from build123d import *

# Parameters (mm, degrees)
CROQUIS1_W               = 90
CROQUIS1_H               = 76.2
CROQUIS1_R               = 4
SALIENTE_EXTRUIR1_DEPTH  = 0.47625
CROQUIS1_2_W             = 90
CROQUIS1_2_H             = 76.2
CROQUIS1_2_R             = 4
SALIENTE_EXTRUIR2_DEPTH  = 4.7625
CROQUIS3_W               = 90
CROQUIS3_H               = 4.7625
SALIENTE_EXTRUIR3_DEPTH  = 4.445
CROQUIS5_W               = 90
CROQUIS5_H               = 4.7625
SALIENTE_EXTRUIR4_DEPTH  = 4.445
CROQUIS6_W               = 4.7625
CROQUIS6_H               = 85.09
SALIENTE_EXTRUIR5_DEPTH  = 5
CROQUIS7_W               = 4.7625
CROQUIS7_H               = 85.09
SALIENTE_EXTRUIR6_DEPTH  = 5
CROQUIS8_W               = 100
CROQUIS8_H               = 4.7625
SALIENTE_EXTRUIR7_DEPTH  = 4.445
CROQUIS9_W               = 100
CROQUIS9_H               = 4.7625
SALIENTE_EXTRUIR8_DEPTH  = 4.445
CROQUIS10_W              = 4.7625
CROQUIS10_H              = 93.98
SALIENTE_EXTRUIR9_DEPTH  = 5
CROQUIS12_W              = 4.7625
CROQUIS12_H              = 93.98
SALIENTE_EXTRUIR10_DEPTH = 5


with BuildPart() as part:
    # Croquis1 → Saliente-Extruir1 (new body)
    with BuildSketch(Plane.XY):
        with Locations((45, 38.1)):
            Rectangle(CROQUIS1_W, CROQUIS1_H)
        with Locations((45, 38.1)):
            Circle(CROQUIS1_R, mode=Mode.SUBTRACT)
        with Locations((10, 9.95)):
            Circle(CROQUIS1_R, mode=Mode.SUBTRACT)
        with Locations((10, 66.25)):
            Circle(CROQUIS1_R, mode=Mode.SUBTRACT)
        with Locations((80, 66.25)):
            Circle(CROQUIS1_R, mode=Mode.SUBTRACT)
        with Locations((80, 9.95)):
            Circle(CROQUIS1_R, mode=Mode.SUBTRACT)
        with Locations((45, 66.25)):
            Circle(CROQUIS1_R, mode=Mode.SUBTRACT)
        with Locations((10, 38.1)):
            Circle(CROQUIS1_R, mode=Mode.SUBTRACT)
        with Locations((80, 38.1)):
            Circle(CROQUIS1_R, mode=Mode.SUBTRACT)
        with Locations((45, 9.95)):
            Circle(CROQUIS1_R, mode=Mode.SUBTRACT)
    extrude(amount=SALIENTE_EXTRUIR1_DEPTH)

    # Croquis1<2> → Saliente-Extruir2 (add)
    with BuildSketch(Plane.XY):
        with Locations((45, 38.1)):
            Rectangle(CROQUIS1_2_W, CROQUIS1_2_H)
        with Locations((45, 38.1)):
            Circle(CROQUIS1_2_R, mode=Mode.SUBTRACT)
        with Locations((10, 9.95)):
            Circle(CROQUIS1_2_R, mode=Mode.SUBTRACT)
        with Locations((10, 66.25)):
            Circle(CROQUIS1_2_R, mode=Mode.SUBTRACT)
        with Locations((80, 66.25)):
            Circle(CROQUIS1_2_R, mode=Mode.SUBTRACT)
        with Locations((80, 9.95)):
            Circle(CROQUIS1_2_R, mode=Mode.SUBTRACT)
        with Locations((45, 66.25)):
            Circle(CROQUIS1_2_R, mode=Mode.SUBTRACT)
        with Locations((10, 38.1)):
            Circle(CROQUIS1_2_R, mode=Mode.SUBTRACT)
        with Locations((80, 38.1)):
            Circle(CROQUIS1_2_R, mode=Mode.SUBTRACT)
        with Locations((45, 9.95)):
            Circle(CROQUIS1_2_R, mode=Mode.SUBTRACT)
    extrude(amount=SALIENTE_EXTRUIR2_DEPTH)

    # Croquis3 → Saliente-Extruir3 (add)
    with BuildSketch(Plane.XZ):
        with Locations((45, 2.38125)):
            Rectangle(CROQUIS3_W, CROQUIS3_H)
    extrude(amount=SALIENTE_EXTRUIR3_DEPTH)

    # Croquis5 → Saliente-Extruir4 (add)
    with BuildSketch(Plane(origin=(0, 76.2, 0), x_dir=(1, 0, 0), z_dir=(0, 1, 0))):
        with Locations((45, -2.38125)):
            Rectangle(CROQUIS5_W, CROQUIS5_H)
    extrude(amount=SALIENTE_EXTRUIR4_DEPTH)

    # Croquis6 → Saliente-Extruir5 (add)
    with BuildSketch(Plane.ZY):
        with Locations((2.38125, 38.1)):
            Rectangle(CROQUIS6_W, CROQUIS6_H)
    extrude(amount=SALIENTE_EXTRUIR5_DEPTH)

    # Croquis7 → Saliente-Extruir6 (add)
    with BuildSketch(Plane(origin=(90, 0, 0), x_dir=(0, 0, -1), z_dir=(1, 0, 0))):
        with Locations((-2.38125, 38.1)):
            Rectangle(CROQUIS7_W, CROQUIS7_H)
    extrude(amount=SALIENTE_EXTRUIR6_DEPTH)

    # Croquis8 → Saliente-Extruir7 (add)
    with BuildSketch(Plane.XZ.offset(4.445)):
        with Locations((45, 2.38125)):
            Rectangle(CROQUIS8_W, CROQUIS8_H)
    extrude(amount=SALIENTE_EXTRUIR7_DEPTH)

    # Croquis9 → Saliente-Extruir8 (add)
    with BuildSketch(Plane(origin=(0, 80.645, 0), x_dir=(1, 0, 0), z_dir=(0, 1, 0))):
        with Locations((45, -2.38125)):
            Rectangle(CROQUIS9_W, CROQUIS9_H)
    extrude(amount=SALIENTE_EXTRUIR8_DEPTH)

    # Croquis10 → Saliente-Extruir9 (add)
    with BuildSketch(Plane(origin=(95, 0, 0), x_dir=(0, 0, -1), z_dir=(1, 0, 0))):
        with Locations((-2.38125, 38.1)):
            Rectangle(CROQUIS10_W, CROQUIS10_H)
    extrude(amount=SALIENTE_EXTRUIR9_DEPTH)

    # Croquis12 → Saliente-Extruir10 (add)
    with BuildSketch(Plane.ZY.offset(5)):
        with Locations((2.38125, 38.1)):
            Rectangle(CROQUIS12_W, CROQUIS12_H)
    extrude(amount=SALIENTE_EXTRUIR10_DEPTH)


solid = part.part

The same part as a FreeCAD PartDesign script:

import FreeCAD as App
import Part
import Sketcher
Q = App.Units.Quantity

doc = App.newDocument("Part")
body = doc.addObject("PartDesign::Body", "Body")

# Sketch on XY plane
sketch1 = doc.addObject("Sketcher::SketchObject", "Sketch")
body.addObject(sketch1)
sketch1.AttachmentSupport = (doc.XY_Plane, [""])
sketch1.MapMode = "FlatFace"
sketch1.addGeometry([
    Part.LineSegment(App.Vector(0, 76.2, 0), App.Vector(0, 0, 0)),  # 0
    Part.LineSegment(App.Vector(0, 0, 0), App.Vector(90, 0, 0)),  # 1
    Part.LineSegment(App.Vector(90, 0, 0), App.Vector(90, 76.2, 0)),  # 2
    Part.LineSegment(App.Vector(90, 76.2, 0), App.Vector(0, 76.2, 0)),  # 3
    Part.Circle(App.Vector(10, 9.9, 0), App.Vector(0, 0, 1), 4),  # 4
    Part.Circle(App.Vector(45, 9.9, 0), App.Vector(0, 0, 1), 4),  # 5
    Part.Circle(App.Vector(80, 9.9, 0), App.Vector(0, 0, 1), 4),  # 6
    Part.Circle(App.Vector(10, 38.1, 0), App.Vector(0, 0, 1), 4),  # 7
    Part.Circle(App.Vector(10, 66.2, 0), App.Vector(0, 0, 1), 4),  # 8
    Part.Circle(App.Vector(45, 38.1, 0), App.Vector(0, 0, 1), 4),  # 9
    Part.Circle(App.Vector(80, 38.1, 0), App.Vector(0, 0, 1), 4),  # 10
    Part.Circle(App.Vector(45, 66.2, 0), App.Vector(0, 0, 1), 4),  # 11
    Part.Circle(App.Vector(80, 66.2, 0), App.Vector(0, 0, 1), 4),  # 12
], False)
sketch1.addConstraint([
    Sketcher.Constraint("Coincident", 0, 2, 1, 1),
    Sketcher.Constraint("Coincident", 1, 2, 2, 1),
    Sketcher.Constraint("Coincident", 2, 2, 3, 1),
    Sketcher.Constraint("Coincident", 3, 2, 0, 1),
    Sketcher.Constraint("Vertical", 0),
    Sketcher.Constraint("Horizontal", 1),
    Sketcher.Constraint("Vertical", 2),
    Sketcher.Constraint("Horizontal", 3),
    Sketcher.Constraint("Coincident", 0, 2, -1, 1),
    Sketcher.Constraint("Equal", 4, 5),
    Sketcher.Constraint("Equal", 5, 6),
    Sketcher.Constraint("Equal", 6, 7),
    Sketcher.Constraint("Equal", 7, 8),
    Sketcher.Constraint("Equal", 8, 9),
    Sketcher.Constraint("Equal", 9, 10),
    Sketcher.Constraint("Equal", 10, 11),
    Sketcher.Constraint("Equal", 11, 12),
    Sketcher.Constraint("Horizontal", 4, 3, 5, 3),
    Sketcher.Constraint("Horizontal", 5, 3, 6, 3),
    Sketcher.Constraint("Horizontal", 7, 3, 9, 3),
    Sketcher.Constraint("Horizontal", 9, 3, 10, 3),
    Sketcher.Constraint("Horizontal", 8, 3, 11, 3),
    Sketcher.Constraint("Horizontal", 11, 3, 12, 3),
    Sketcher.Constraint("Vertical", 4, 3, 7, 3),
    Sketcher.Constraint("Vertical", 7, 3, 8, 3),
    Sketcher.Constraint("Vertical", 5, 3, 9, 3),
    Sketcher.Constraint("Vertical", 6, 3, 10, 3),
    Sketcher.Constraint("Vertical", 9, 3, 11, 3),
    Sketcher.Constraint("Vertical", 10, 3, 12, 3),
    Sketcher.Constraint("DistanceY", 0, 2, 0, 1, Q("3 in")),
    Sketcher.Constraint("DistanceY", -1, 1, 7, 3, Q("1.5 in")),
    Sketcher.Constraint("Diameter", 4, Q("8 mm")),
    Sketcher.Constraint("DistanceX", 1, 1, 1, 2, Q("90 mm")),
    Sketcher.Constraint("DistanceX", -1, 1, 4, 3, Q("10 mm")),
    Sketcher.Constraint("DistanceY", -1, 1, 4, 3, Q("9.95 mm")),
    Sketcher.Constraint("DistanceX", -1, 1, 5, 3, Q("45 mm")),
    Sketcher.Constraint("DistanceX", -1, 1, 6, 3, Q("80 mm")),
    Sketcher.Constraint("DistanceY", -1, 1, 8, 3, Q("66.25 mm")),
])
pad1 = doc.addObject("PartDesign::Pad", "Pad")
body.addObject(pad1)
pad1.Profile = sketch1
pad1.Length = 0.47625

# Sketch on XY plane
sketch2 = doc.addObject("Sketcher::SketchObject", "Sketch001")
body.addObject(sketch2)
sketch2.AttachmentSupport = (doc.XY_Plane, [""])
sketch2.MapMode = "FlatFace"
sketch2.addGeometry([
    Part.LineSegment(App.Vector(0, 76.2, 0), App.Vector(0, 0, 0)),  # 0
    Part.LineSegment(App.Vector(0, 0, 0), App.Vector(90, 0, 0)),  # 1
    Part.LineSegment(App.Vector(90, 0, 0), App.Vector(90, 76.2, 0)),  # 2
    Part.LineSegment(App.Vector(90, 76.2, 0), App.Vector(0, 76.2, 0)),  # 3
    Part.Circle(App.Vector(10, 9.9, 0), App.Vector(0, 0, 1), 4),  # 4
    Part.Circle(App.Vector(45, 9.9, 0), App.Vector(0, 0, 1), 4),  # 5
    Part.Circle(App.Vector(80, 9.9, 0), App.Vector(0, 0, 1), 4),  # 6
    Part.Circle(App.Vector(10, 38.1, 0), App.Vector(0, 0, 1), 4),  # 7
    Part.Circle(App.Vector(10, 66.2, 0), App.Vector(0, 0, 1), 4),  # 8
    Part.Circle(App.Vector(45, 38.1, 0), App.Vector(0, 0, 1), 4),  # 9
    Part.Circle(App.Vector(80, 38.1, 0), App.Vector(0, 0, 1), 4),  # 10
    Part.Circle(App.Vector(45, 66.2, 0), App.Vector(0, 0, 1), 4),  # 11
    Part.Circle(App.Vector(80, 66.2, 0), App.Vector(0, 0, 1), 4),  # 12
], False)
sketch2.addConstraint([
    Sketcher.Constraint("Coincident", 0, 2, 1, 1),
    Sketcher.Constraint("Coincident", 1, 2, 2, 1),
    Sketcher.Constraint("Coincident", 2, 2, 3, 1),
    Sketcher.Constraint("Coincident", 3, 2, 0, 1),
    Sketcher.Constraint("Vertical", 0),
    Sketcher.Constraint("Horizontal", 1),
    Sketcher.Constraint("Vertical", 2),
    Sketcher.Constraint("Horizontal", 3),
    Sketcher.Constraint("Coincident", 0, 2, -1, 1),
    Sketcher.Constraint("Equal", 4, 5),
    Sketcher.Constraint("Equal", 5, 6),
    Sketcher.Constraint("Equal", 6, 7),
    Sketcher.Constraint("Equal", 7, 8),
    Sketcher.Constraint("Equal", 8, 9),
    Sketcher.Constraint("Equal", 9, 10),
    Sketcher.Constraint("Equal", 10, 11),
    Sketcher.Constraint("Equal", 11, 12),
    Sketcher.Constraint("Horizontal", 4, 3, 5, 3),
    Sketcher.Constraint("Horizontal", 5, 3, 6, 3),
    Sketcher.Constraint("Horizontal", 7, 3, 9, 3),
    Sketcher.Constraint("Horizontal", 9, 3, 10, 3),
    Sketcher.Constraint("Horizontal", 8, 3, 11, 3),
    Sketcher.Constraint("Horizontal", 11, 3, 12, 3),
    Sketcher.Constraint("Vertical", 4, 3, 7, 3),
    Sketcher.Constraint("Vertical", 7, 3, 8, 3),
    Sketcher.Constraint("Vertical", 5, 3, 9, 3),
    Sketcher.Constraint("Vertical", 6, 3, 10, 3),
    Sketcher.Constraint("Vertical", 9, 3, 11, 3),
    Sketcher.Constraint("Vertical", 10, 3, 12, 3),
    Sketcher.Constraint("DistanceY", 0, 2, 0, 1, Q("3 in")),
    Sketcher.Constraint("DistanceY", -1, 1, 7, 3, Q("1.5 in")),
    Sketcher.Constraint("Diameter", 4, Q("8 mm")),
    Sketcher.Constraint("DistanceX", 1, 1, 1, 2, Q("90 mm")),
    Sketcher.Constraint("DistanceX", -1, 1, 4, 3, Q("10 mm")),
    Sketcher.Constraint("DistanceY", -1, 1, 4, 3, Q("9.95 mm")),
    Sketcher.Constraint("DistanceX", -1, 1, 5, 3, Q("45 mm")),
    Sketcher.Constraint("DistanceX", -1, 1, 6, 3, Q("80 mm")),
    Sketcher.Constraint("DistanceY", -1, 1, 8, 3, Q("66.25 mm")),
])
pad2 = doc.addObject("PartDesign::Pad", "Pad001")
body.addObject(pad2)
pad2.Profile = sketch2
pad2.Length = Q("0.1875 in")

# Sketch on XZ plane
sketch3 = doc.addObject("Sketcher::SketchObject", "Sketch002")
body.addObject(sketch3)
sketch3.AttachmentSupport = (doc.XZ_Plane, [""])
sketch3.MapMode = "FlatFace"
sketch3.addGeometry([
    Part.LineSegment(App.Vector(0, 4.8, 0), App.Vector(0, 0, 0)),
    Part.LineSegment(App.Vector(0, 0, 0), App.Vector(90, 0, 0)),
    Part.LineSegment(App.Vector(90, 0, 0), App.Vector(90, 4.8, 0)),
    Part.LineSegment(App.Vector(90, 4.8, 0), App.Vector(0, 4.8, 0)),
], False)
sketch3.addConstraint([
    Sketcher.Constraint("Coincident", 0, 2, 1, 1),
    Sketcher.Constraint("Coincident", 1, 2, 2, 1),
    Sketcher.Constraint("Coincident", 2, 2, 3, 1),
    Sketcher.Constraint("Coincident", 3, 2, 0, 1),
    Sketcher.Constraint("Vertical", 0),
    Sketcher.Constraint("Horizontal", 1),
    Sketcher.Constraint("Vertical", 2),
    Sketcher.Constraint("Horizontal", 3),
    Sketcher.Constraint("Coincident", 0, 2, -1, 1),
    Sketcher.Constraint("DistanceY", 0, 2, 0, 1, Q("0.1875 in")),
    Sketcher.Constraint("DistanceX", 1, 1, 1, 2, Q("90 mm")),
])
pad3 = doc.addObject("PartDesign::Pad", "Pad002")
body.addObject(pad3)
pad3.Profile = sketch3
pad3.Length = Q("0.175 in")

# Sketch on XZ plane
sketch4 = doc.addObject("Sketcher::SketchObject", "Sketch003")
body.addObject(sketch4)
sketch4.AttachmentSupport = (doc.XZ_Plane, [""])
sketch4.MapMode = "FlatFace"
sketch4.AttachmentOffset = App.Placement(App.Vector(0, 0, -3 * 25.4), App.Rotation())
sketch4.addGeometry([
    Part.LineSegment(App.Vector(0, 0, 0), App.Vector(0, 4.8, 0)),
    Part.LineSegment(App.Vector(0, 4.8, 0), App.Vector(90, 4.8, 0)),
    Part.LineSegment(App.Vector(90, 4.8, 0), App.Vector(90, 0, 0)),
    Part.LineSegment(App.Vector(90, 0, 0), App.Vector(0, 0, 0)),
], False)
sketch4.addConstraint([
    Sketcher.Constraint("Coincident", 0, 2, 1, 1),
    Sketcher.Constraint("Coincident", 1, 2, 2, 1),
    Sketcher.Constraint("Coincident", 2, 2, 3, 1),
    Sketcher.Constraint("Coincident", 3, 2, 0, 1),
    Sketcher.Constraint("Vertical", 0),
    Sketcher.Constraint("Horizontal", 1),
    Sketcher.Constraint("Vertical", 2),
    Sketcher.Constraint("Horizontal", 3),
    Sketcher.Constraint("Coincident", 3, 2, -1, 1),
    Sketcher.Constraint("DistanceY", 0, 1, 0, 2, Q("0.1875 in")),
    Sketcher.Constraint("DistanceX", 1, 1, 1, 2, Q("90 mm")),
])
pad4 = doc.addObject("PartDesign::Pad", "Pad003")
body.addObject(pad4)
pad4.Profile = sketch4
pad4.Length = Q("0.175 in")
pad4.Reversed = True

# Sketch on YZ plane
sketch5 = doc.addObject("Sketcher::SketchObject", "Sketch004")
body.addObject(sketch5)
sketch5.AttachmentSupport = (doc.YZ_Plane, [""])
sketch5.MapMode = "FlatFace"
sketch5.addGeometry([
    Part.LineSegment(App.Vector(80.6, 0, 0), App.Vector(-4.4, 0, 0)),
    Part.LineSegment(App.Vector(-4.4, 0, 0), App.Vector(-4.4, 4.8, 0)),
    Part.LineSegment(App.Vector(-4.4, 4.8, 0), App.Vector(80.6, 4.8, 0)),
    Part.LineSegment(App.Vector(80.6, 4.8, 0), App.Vector(80.6, 0, 0)),
], False)
sketch5.addConstraint([
    Sketcher.Constraint("Coincident", 0, 2, 1, 1),
    Sketcher.Constraint("Coincident", 1, 2, 2, 1),
    Sketcher.Constraint("Coincident", 2, 2, 3, 1),
    Sketcher.Constraint("Coincident", 3, 2, 0, 1),
    Sketcher.Constraint("Horizontal", 0),
    Sketcher.Constraint("Vertical", 1),
    Sketcher.Constraint("Horizontal", 2),
    Sketcher.Constraint("Vertical", 3),
    Sketcher.Constraint("PointOnObject", 0, 2, -1),
    Sketcher.Constraint("DistanceX", 0, 2, 0, 1, Q("3.35 in")),
    Sketcher.Constraint("DistanceY", 1, 1, 1, 2, Q("0.1875 in")),
    Sketcher.Constraint("DistanceX", 0, 2, -1, 1, Q("0.175 in")),
])
pad5 = doc.addObject("PartDesign::Pad", "Pad004")
body.addObject(pad5)
pad5.Profile = sketch5
pad5.Length = 5
pad5.Reversed = True

# Sketch on YZ plane
sketch6 = doc.addObject("Sketcher::SketchObject", "Sketch005")
body.addObject(sketch6)
sketch6.AttachmentSupport = (doc.YZ_Plane, [""])
sketch6.MapMode = "FlatFace"
sketch6.AttachmentOffset = App.Placement(App.Vector(0, 0, 90), App.Rotation())
sketch6.addGeometry([
    Part.LineSegment(App.Vector(80.6, 4.8, 0), App.Vector(-4.4, 4.8, 0)),
    Part.LineSegment(App.Vector(-4.4, 4.8, 0), App.Vector(-4.4, 0, 0)),
    Part.LineSegment(App.Vector(-4.4, 0, 0), App.Vector(80.6, 0, 0)),
    Part.LineSegment(App.Vector(80.6, 0, 0), App.Vector(80.6, 4.8, 0)),
], False)
sketch6.addConstraint([
    Sketcher.Constraint("Coincident", 0, 2, 1, 1),
    Sketcher.Constraint("Coincident", 1, 2, 2, 1),
    Sketcher.Constraint("Coincident", 2, 2, 3, 1),
    Sketcher.Constraint("Coincident", 3, 2, 0, 1),
    Sketcher.Constraint("Horizontal", 0),
    Sketcher.Constraint("Vertical", 1),
    Sketcher.Constraint("Horizontal", 2),
    Sketcher.Constraint("Vertical", 3),
    Sketcher.Constraint("PointOnObject", 1, 2, -1),
    Sketcher.Constraint("DistanceX", 0, 2, 0, 1, Q("3.35 in")),
    Sketcher.Constraint("DistanceY", 1, 2, 1, 1, Q("0.1875 in")),
    Sketcher.Constraint("DistanceX", 0, 2, -1, 1, Q("0.175 in")),
])
pad6 = doc.addObject("PartDesign::Pad", "Pad005")
body.addObject(pad6)
pad6.Profile = sketch6
pad6.Length = 5

# Sketch on XZ plane
sketch7 = doc.addObject("Sketcher::SketchObject", "Sketch006")
body.addObject(sketch7)
sketch7.AttachmentSupport = (doc.XZ_Plane, [""])
sketch7.MapMode = "FlatFace"
sketch7.AttachmentOffset = App.Placement(App.Vector(0, 0, 0.175 * 25.4), App.Rotation())
sketch7.addGeometry([
    Part.LineSegment(App.Vector(-5, 4.8, 0), App.Vector(-5, 0, 0)),
    Part.LineSegment(App.Vector(-5, 0, 0), App.Vector(95, 0, 0)),
    Part.LineSegment(App.Vector(95, 0, 0), App.Vector(95, 4.8, 0)),
    Part.LineSegment(App.Vector(95, 4.8, 0), App.Vector(-5, 4.8, 0)),
], False)
sketch7.addConstraint([
    Sketcher.Constraint("Coincident", 0, 2, 1, 1),
    Sketcher.Constraint("Coincident", 1, 2, 2, 1),
    Sketcher.Constraint("Coincident", 2, 2, 3, 1),
    Sketcher.Constraint("Coincident", 3, 2, 0, 1),
    Sketcher.Constraint("Vertical", 0),
    Sketcher.Constraint("Horizontal", 1),
    Sketcher.Constraint("Vertical", 2),
    Sketcher.Constraint("Horizontal", 3),
    Sketcher.Constraint("PointOnObject", 0, 2, -1),
    Sketcher.Constraint("DistanceY", 0, 2, 0, 1, Q("0.1875 in")),
    Sketcher.Constraint("DistanceX", 1, 1, 1, 2, Q("100 mm")),
    Sketcher.Constraint("DistanceX", 0, 2, -1, 1, Q("5 mm")),
])
pad7 = doc.addObject("PartDesign::Pad", "Pad006")
body.addObject(pad7)
pad7.Profile = sketch7
pad7.Length = Q("0.175 in")

# Sketch on XZ plane
sketch8 = doc.addObject("Sketcher::SketchObject", "Sketch007")
body.addObject(sketch8)
sketch8.AttachmentSupport = (doc.XZ_Plane, [""])
sketch8.MapMode = "FlatFace"
sketch8.AttachmentOffset = App.Placement(App.Vector(0, 0, -3.175 * 25.4), App.Rotation())
sketch8.addGeometry([
    Part.LineSegment(App.Vector(-5, 0, 0), App.Vector(-5, 4.8, 0)),
    Part.LineSegment(App.Vector(-5, 4.8, 0), App.Vector(95, 4.8, 0)),
    Part.LineSegment(App.Vector(95, 4.8, 0), App.Vector(95, 0, 0)),
    Part.LineSegment(App.Vector(95, 0, 0), App.Vector(-5, 0, 0)),
], False)
sketch8.addConstraint([
    Sketcher.Constraint("Coincident", 0, 2, 1, 1),
    Sketcher.Constraint("Coincident", 1, 2, 2, 1),
    Sketcher.Constraint("Coincident", 2, 2, 3, 1),
    Sketcher.Constraint("Coincident", 3, 2, 0, 1),
    Sketcher.Constraint("Vertical", 0),
    Sketcher.Constraint("Horizontal", 1),
    Sketcher.Constraint("Vertical", 2),
    Sketcher.Constraint("Horizontal", 3),
    Sketcher.Constraint("PointOnObject", 2, 2, -1),
    Sketcher.Constraint("DistanceY", 0, 1, 0, 2, Q("0.1875 in")),
    Sketcher.Constraint("DistanceX", 1, 1, 1, 2, Q("100 mm")),
    Sketcher.Constraint("DistanceX", 0, 2, -1, 1, Q("5 mm")),
])
pad8 = doc.addObject("PartDesign::Pad", "Pad007")
body.addObject(pad8)
pad8.Profile = sketch8
pad8.Length = Q("0.175 in")
pad8.Reversed = True

# Sketch on YZ plane
sketch9 = doc.addObject("Sketcher::SketchObject", "Sketch008")
body.addObject(sketch9)
sketch9.AttachmentSupport = (doc.YZ_Plane, [""])
sketch9.MapMode = "FlatFace"
sketch9.AttachmentOffset = App.Placement(App.Vector(0, 0, 95), App.Rotation())
sketch9.addGeometry([
    Part.LineSegment(App.Vector(85.1, 4.8, 0), App.Vector(-8.9, 4.8, 0)),
    Part.LineSegment(App.Vector(-8.9, 4.8, 0), App.Vector(-8.9, 0, 0)),
    Part.LineSegment(App.Vector(-8.9, 0, 0), App.Vector(85.1, 0, 0)),
    Part.LineSegment(App.Vector(85.1, 0, 0), App.Vector(85.1, 4.8, 0)),
], False)
sketch9.addConstraint([
    Sketcher.Constraint("Coincident", 0, 2, 1, 1),
    Sketcher.Constraint("Coincident", 1, 2, 2, 1),
    Sketcher.Constraint("Coincident", 2, 2, 3, 1),
    Sketcher.Constraint("Coincident", 3, 2, 0, 1),
    Sketcher.Constraint("Horizontal", 0),
    Sketcher.Constraint("Vertical", 1),
    Sketcher.Constraint("Horizontal", 2),
    Sketcher.Constraint("Vertical", 3),
    Sketcher.Constraint("PointOnObject", 1, 2, -1),
    Sketcher.Constraint("DistanceX", 0, 2, 0, 1, Q("3.7 in")),
    Sketcher.Constraint("DistanceY", 1, 2, 1, 1, Q("0.1875 in")),
    Sketcher.Constraint("DistanceX", 0, 2, -1, 1, Q("0.35 in")),
])
pad9 = doc.addObject("PartDesign::Pad", "Pad008")
body.addObject(pad9)
pad9.Profile = sketch9
pad9.Length = 5

# Sketch on YZ plane
sketch10 = doc.addObject("Sketcher::SketchObject", "Sketch009")
body.addObject(sketch10)
sketch10.AttachmentSupport = (doc.YZ_Plane, [""])
sketch10.MapMode = "FlatFace"
sketch10.AttachmentOffset = App.Placement(App.Vector(0, 0, -5), App.Rotation())
sketch10.addGeometry([
    Part.LineSegment(App.Vector(85.1, 0, 0), App.Vector(-8.9, 0, 0)),
    Part.LineSegment(App.Vector(-8.9, 0, 0), App.Vector(-8.9, 4.8, 0)),
    Part.LineSegment(App.Vector(-8.9, 4.8, 0), App.Vector(85.1, 4.8, 0)),
    Part.LineSegment(App.Vector(85.1, 4.8, 0), App.Vector(85.1, 0, 0)),
], False)
sketch10.addConstraint([
    Sketcher.Constraint("Coincident", 0, 2, 1, 1),
    Sketcher.Constraint("Coincident", 1, 2, 2, 1),
    Sketcher.Constraint("Coincident", 2, 2, 3, 1),
    Sketcher.Constraint("Coincident", 3, 2, 0, 1),
    Sketcher.Constraint("Horizontal", 0),
    Sketcher.Constraint("Vertical", 1),
    Sketcher.Constraint("Horizontal", 2),
    Sketcher.Constraint("Vertical", 3),
    Sketcher.Constraint("PointOnObject", 0, 2, -1),
    Sketcher.Constraint("DistanceX", 0, 2, 0, 1, Q("3.7 in")),
    Sketcher.Constraint("DistanceY", 1, 1, 1, 2, Q("0.1875 in")),
    Sketcher.Constraint("DistanceX", 0, 2, -1, 1, Q("0.35 in")),
])
pad10 = doc.addObject("PartDesign::Pad", "Pad009")
body.addObject(pad10)
pad10.Profile = sketch10
pad10.Length = 5
pad10.Reversed = True

doc.recompute()
